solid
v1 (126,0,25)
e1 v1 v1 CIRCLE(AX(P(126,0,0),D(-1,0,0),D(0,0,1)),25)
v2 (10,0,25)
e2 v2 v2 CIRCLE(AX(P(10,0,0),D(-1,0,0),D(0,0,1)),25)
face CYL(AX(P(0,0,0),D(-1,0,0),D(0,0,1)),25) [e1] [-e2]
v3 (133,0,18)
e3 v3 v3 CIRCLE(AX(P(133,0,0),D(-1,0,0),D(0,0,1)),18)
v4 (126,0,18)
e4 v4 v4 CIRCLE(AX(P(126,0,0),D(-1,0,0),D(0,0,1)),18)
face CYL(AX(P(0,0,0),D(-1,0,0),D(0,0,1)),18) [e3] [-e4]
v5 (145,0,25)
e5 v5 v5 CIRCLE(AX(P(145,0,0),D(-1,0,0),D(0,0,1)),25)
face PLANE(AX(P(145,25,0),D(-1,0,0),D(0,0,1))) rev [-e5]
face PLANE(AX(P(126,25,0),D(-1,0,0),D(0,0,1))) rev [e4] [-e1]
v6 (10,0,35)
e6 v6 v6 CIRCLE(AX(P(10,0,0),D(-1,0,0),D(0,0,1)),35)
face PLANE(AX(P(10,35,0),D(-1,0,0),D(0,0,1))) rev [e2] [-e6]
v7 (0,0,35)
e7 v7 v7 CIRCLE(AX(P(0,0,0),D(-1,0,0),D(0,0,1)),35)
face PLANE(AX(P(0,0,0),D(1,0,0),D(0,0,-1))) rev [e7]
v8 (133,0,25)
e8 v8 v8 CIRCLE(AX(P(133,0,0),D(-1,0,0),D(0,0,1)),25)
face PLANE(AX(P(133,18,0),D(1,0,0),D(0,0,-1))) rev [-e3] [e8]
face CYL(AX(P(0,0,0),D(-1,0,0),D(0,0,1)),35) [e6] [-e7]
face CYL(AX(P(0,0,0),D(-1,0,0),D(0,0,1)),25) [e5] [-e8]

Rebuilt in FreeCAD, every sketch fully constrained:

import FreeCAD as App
import Part
import Sketcher


def add_polygon(sketch, points):
    """Adds a closed chain of lines whose ends are joined by coincident constraints."""
    first, n = sketch.GeometryCount, len(points)
    for a, b in zip(points, points[1:] + points[:1]):
        sketch.addGeometry(Part.LineSegment(App.Vector(*a, 0), App.Vector(*b, 0)), False)
    for i in range(n):
        sketch.addConstraint(Sketcher.Constraint("Coincident", first + i, 2, first + (i + 1) % n, 1))

doc = App.newDocument("Part")
params = doc.addObject("Spreadsheet::Sheet", "Params")
for row, (alias, value) in enumerate([
    ("sketch1_width", "145 mm"),
    ("sketch1_width2", "12 mm"),
    ("sketch1_width3", "7 mm"),
    ("sketch1_width4", "116 mm"),
    ("sketch1_height", "25 mm"),
    ("revolution_angle", "360 deg"),
], start=1):
    params.set(f"A{row}", alias)
    params.set(f"B{row}", "=" + value)
    params.setAlias(f"B{row}", alias)

body = doc.addObject("PartDesign::Body", "Body")

# Sketch on XY plane
sketch1 = body.newObject("Sketcher::SketchObject", "Sketch")
sketch1.AttachmentSupport = (doc.getObject("XY_Plane"), [""])
sketch1.MapMode = "FlatFace"
add_polygon(sketch1, [(0, 0), (145, 0), (145, 25), (133, 25), (133, 18), (126, 18), (126, 25), (10, 25), (10, 35), (0, 35)])  # lines 0-9
sketch1.addConstraint([
    Sketcher.Constraint("Horizontal", 0),
    Sketcher.Constraint("Vertical", 1),
    Sketcher.Constraint("Horizontal", 2),
    Sketcher.Constraint("Vertical", 3),
    Sketcher.Constraint("Horizontal", 4),
    Sketcher.Constraint("Vertical", 5),
    Sketcher.Constraint("Horizontal", 6),
    Sketcher.Constraint("Vertical", 7),
    Sketcher.Constraint("Horizontal", 8),
    Sketcher.Constraint("Vertical", 9),
    Sketcher.Constraint("Coincident", 9, 2, -1, 1),
    Sketcher.Constraint("Horizontal", 2, 2, 5, 2),
    Sketcher.Constraint("Equal", 4, 3),
    Sketcher.Constraint("Equal", 8, 7),
    Sketcher.Constraint("DistanceX", 0, 1, 0, 2, 145.0),
    Sketcher.Constraint("DistanceX", 2, 2, 2, 1, 12.0),
    Sketcher.Constraint("DistanceX", 4, 2, 4, 1, 7.0),
    Sketcher.Constraint("DistanceX", 6, 2, 6, 1, 116.0),
    Sketcher.Constraint("DistanceY", 1, 1, 1, 2, 25.0),
])
sketch1.setExpression("Constraints[24]", "Params.sketch1_width")
sketch1.setExpression("Constraints[25]", "Params.sketch1_width2")
sketch1.setExpression("Constraints[26]", "Params.sketch1_width3")
sketch1.setExpression("Constraints[27]", "Params.sketch1_width4")
sketch1.setExpression("Constraints[28]", "Params.sketch1_height")
revolution = body.newObject("PartDesign::Revolution", "Revolution")
revolution.Profile = sketch1
revolution.ReferenceAxis = (sketch1, ["H_Axis"])
revolution.setExpression("Angle", "Params.revolution_angle")

doc.recompute()
